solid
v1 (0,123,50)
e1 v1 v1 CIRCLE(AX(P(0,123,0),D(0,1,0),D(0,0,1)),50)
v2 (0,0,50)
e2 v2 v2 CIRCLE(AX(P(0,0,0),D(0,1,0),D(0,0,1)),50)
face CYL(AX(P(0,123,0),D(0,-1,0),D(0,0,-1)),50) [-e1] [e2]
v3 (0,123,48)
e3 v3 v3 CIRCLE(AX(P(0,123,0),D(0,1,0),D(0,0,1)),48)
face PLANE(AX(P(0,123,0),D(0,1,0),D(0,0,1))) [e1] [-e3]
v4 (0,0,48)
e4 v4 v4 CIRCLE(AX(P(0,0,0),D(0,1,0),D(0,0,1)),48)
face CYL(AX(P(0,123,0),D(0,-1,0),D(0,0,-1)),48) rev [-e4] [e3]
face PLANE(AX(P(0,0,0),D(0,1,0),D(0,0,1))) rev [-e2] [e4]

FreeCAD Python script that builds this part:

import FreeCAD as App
import Part
import Sketcher

V = App.Vector
Q = App.Units.Quantity

doc = App.newDocument("Part")
body = doc.addObject("PartDesign::Body", "Body")

# Sketch on XZ plane
sketch1 = body.newObject("Sketcher::SketchObject", "Sketch")
sketch1.AttachmentSupport = (doc.getObject("XZ_Plane"), [""])
sketch1.MapMode = "FlatFace"
sketch1.addGeometry([
    Part.Circle(V(0, 0, 0), V(0, 0, 1), 50),
    Part.Circle(V(0, 0, 0), V(0, 0, 1), 48),
], False)
sketch1.addConstraint([
    Sketcher.Constraint("Coincident", 0, 3, -1, 1),
    Sketcher.Constraint("Coincident", 1, 3, -1, 1),
    Sketcher.Constraint("Diameter", 0, Q("100 mm")),
    Sketcher.Constraint("Diameter", 1, Q("96 mm")),
])
pad1 = body.newObject("PartDesign::Pad", "Pad")
pad1.Profile = sketch1
pad1.Length = 123
pad1.Reversed = True

doc.recompute()
